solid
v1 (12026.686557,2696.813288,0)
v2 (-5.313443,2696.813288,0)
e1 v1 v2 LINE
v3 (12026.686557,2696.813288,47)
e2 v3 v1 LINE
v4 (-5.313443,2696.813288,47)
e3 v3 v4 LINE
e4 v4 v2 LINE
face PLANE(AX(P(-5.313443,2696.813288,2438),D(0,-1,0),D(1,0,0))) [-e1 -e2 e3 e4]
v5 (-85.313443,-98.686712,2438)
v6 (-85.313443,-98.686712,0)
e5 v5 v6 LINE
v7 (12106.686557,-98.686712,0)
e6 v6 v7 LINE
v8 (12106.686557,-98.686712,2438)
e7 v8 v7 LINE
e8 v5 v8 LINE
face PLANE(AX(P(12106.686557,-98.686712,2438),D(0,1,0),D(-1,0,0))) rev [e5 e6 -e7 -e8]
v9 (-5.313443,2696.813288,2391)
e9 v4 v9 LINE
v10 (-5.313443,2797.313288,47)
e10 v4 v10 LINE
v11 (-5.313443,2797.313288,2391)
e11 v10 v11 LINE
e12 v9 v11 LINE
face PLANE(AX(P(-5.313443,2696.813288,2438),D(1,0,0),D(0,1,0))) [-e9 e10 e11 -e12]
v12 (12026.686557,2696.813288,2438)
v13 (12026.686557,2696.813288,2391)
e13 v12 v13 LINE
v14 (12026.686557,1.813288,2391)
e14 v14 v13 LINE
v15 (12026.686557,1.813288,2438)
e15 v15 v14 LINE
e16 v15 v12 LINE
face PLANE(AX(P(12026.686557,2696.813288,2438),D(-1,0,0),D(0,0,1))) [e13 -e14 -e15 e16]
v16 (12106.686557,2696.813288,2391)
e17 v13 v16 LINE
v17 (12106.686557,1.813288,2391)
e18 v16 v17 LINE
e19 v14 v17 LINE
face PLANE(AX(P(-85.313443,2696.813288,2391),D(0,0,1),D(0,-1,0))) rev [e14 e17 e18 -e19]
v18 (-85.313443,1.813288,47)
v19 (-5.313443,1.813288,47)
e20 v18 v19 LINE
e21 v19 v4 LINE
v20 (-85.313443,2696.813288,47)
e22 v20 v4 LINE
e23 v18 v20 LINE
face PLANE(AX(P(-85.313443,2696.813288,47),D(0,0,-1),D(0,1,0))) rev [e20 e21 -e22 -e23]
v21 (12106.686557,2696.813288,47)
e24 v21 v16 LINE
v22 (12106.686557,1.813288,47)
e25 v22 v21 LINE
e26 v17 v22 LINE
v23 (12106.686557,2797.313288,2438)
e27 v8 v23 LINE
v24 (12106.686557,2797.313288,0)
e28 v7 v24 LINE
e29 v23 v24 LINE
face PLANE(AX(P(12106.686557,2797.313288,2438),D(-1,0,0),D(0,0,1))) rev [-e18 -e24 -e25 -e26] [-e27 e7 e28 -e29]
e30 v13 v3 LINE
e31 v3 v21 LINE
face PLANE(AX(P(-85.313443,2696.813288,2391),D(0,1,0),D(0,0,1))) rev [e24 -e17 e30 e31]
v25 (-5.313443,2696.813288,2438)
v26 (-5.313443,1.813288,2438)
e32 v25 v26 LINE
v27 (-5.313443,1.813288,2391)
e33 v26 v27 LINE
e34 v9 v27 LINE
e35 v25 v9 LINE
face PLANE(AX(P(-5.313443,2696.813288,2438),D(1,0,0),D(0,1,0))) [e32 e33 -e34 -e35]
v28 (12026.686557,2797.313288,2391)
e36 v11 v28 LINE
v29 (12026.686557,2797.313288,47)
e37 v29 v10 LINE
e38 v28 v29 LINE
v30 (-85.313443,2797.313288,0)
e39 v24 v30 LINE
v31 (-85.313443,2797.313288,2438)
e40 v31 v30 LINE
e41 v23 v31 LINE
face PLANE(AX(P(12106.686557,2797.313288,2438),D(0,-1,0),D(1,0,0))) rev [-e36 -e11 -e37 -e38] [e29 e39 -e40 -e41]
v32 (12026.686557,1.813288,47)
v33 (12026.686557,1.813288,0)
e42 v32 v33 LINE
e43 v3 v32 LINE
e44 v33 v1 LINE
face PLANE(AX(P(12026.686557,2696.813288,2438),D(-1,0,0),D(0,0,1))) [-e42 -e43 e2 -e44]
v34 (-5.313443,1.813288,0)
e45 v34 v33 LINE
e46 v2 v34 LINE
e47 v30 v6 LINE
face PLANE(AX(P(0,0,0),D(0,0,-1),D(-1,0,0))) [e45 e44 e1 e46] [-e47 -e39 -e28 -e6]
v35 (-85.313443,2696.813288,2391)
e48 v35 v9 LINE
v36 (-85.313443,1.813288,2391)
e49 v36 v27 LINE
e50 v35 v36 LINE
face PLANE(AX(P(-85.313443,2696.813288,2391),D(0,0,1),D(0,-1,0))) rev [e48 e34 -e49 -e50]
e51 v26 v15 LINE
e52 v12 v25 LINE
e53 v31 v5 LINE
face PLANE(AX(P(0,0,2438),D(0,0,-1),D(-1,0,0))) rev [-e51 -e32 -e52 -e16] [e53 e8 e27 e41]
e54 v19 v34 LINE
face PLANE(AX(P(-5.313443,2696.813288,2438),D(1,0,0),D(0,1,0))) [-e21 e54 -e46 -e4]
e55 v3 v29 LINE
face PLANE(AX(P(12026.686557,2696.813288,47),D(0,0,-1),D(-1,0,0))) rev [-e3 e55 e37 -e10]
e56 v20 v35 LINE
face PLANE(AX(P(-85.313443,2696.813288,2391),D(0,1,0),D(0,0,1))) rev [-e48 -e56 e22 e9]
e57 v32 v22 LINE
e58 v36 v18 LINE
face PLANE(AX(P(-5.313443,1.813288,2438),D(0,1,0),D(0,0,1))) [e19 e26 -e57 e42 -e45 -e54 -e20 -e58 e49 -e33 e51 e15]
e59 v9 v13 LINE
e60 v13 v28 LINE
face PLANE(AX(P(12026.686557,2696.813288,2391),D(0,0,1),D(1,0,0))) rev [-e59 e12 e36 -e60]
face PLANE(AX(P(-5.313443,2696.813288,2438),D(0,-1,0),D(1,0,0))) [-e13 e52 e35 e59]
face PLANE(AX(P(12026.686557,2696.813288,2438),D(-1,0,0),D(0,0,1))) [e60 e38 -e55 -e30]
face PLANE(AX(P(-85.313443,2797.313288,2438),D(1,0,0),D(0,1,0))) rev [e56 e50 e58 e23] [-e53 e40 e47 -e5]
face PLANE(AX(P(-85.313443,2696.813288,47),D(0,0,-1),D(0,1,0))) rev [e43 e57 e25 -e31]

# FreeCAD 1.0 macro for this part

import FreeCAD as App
import Part
import Sketcher
Q = App.Units.Quantity

doc = App.newDocument("Part")
body = doc.addObject("PartDesign::Body", "Body")

# Sketch on XY plane
sketch1 = body.newObject("Sketcher::SketchObject", "Sketch")
sketch1.AttachmentSupport = (doc.getObject("XY_Plane"), [""])
sketch1.MapMode = "FlatFace"
sketch1.addGeometry([
    Part.LineSegment(App.Vector(-85, 2797, 0), App.Vector(-85, -99, 0)),  # 0
    Part.LineSegment(App.Vector(-85, -99, 0), App.Vector(12107, -99, 0)),  # 1
    Part.LineSegment(App.Vector(12107, -99, 0), App.Vector(12107, 2797, 0)),  # 2
    Part.LineSegment(App.Vector(12107, 2797, 0), App.Vector(-85, 2797, 0)),  # 3
    Part.LineSegment(App.Vector(12027, 2, 0), App.Vector(-5, 2, 0)),  # 4
    Part.LineSegment(App.Vector(-5, 2, 0), App.Vector(-5, 2697, 0)),  # 5
    Part.LineSegment(App.Vector(-5, 2697, 0), App.Vector(12027, 2697, 0)),  # 6
    Part.LineSegment(App.Vector(12027, 2697, 0), App.Vector(12027, 2, 0)),  # 7
], False)
sketch1.addConstraint([
    Sketcher.Constraint("Coincident", 0, 2, 1, 1),
    Sketcher.Constraint("Coincident", 1, 2, 2, 1),
    Sketcher.Constraint("Coincident", 2, 2, 3, 1),
    Sketcher.Constraint("Coincident", 3, 2, 0, 1),
    Sketcher.Constraint("Coincident", 4, 2, 5, 1),
    Sketcher.Constraint("Coincident", 5, 2, 6, 1),
    Sketcher.Constraint("Coincident", 6, 2, 7, 1),
    Sketcher.Constraint("Coincident", 7, 2, 4, 1),
    Sketcher.Constraint("Vertical", 0),
    Sketcher.Constraint("Horizontal", 1),
    Sketcher.Constraint("Vertical", 2),
    Sketcher.Constraint("Horizontal", 3),
    Sketcher.Constraint("Horizontal", 4),
    Sketcher.Constraint("Vertical", 5),
    Sketcher.Constraint("Horizontal", 6),
    Sketcher.Constraint("Vertical", 7),
    Sketcher.Constraint("DistanceX", 1, 1, 1, 2, Q("12192 mm")),
    Sketcher.Constraint("DistanceX", 4, 2, 4, 1, Q("12032 mm")),
    Sketcher.Constraint("DistanceY", 0, 2, 0, 1, Q("2896 mm")),
    Sketcher.Constraint("DistanceY", 5, 1, 5, 2, Q("2695 mm")),
    Sketcher.Constraint("DistanceX", 0, 2, 4, 2, Q("80 mm")),
    Sketcher.Constraint("DistanceY", 0, 2, 4, 2, Q("100.5 mm")),
    Sketcher.Constraint("DistanceY", 0, 2, -1, 1, Q("98.686712 mm")),
    Sketcher.Constraint("DistanceX", 0, 2, -1, 1, Q("85.313443 mm")),
])
pad1 = body.newObject("PartDesign::Pad", "Pad")
pad1.Profile = sketch1
pad1.Length = 2438

# Sketch on XZ plane
sketch2 = body.newObject("Sketcher::SketchObject", "Sketch001")
sketch2.AttachmentSupport = (doc.getObject("XZ_Plane"), [""])
sketch2.MapMode = "FlatFace"
sketch2.AttachmentOffset = App.Placement(App.Vector(0, 0, -2797.313288), App.Rotation())
sketch2.addGeometry([
    Part.LineSegment(App.Vector(-5, 47, 0), App.Vector(-5, 2391, 0)),
    Part.LineSegment(App.Vector(-5, 2391, 0), App.Vector(12027, 2391, 0)),
    Part.LineSegment(App.Vector(12027, 2391, 0), App.Vector(12027, 47, 0)),
    Part.LineSegment(App.Vector(12027, 47, 0), App.Vector(-5, 47, 0)),
], False)
sketch2.addConstraint([
    Sketcher.Constraint("Coincident", 0, 2, 1, 1),
    Sketcher.Constraint("Coincident", 1, 2, 2, 1),
    Sketcher.Constraint("Coincident", 2, 2, 3, 1),
    Sketcher.Constraint("Coincident", 3, 2, 0, 1),
    Sketcher.Constraint("Vertical", 0),
    Sketcher.Constraint("Horizontal", 1),
    Sketcher.Constraint("Vertical", 2),
    Sketcher.Constraint("Horizontal", 3),
    Sketcher.Constraint("DistanceX", 1, 1, 1, 2, Q("12032 mm")),
    Sketcher.Constraint("DistanceY", 0, 1, 0, 2, Q("2344 mm")),
    Sketcher.Constraint("DistanceY", -1, 1, 0, 2, Q("2391 mm")),
    Sketcher.Constraint("DistanceX", 0, 2, -1, 1, Q("5.313443 mm")),
])
pocket1 = body.newObject("PartDesign::Pocket", "Pocket")
pocket1.Profile = sketch2
pocket1.Length = 100.5
pocket1.Reversed = True

# Sketch on YZ plane
sketch3 = body.newObject("Sketcher::SketchObject", "Sketch002")
sketch3.AttachmentSupport = (doc.getObject("YZ_Plane"), [""])
sketch3.MapMode = "FlatFace"
sketch3.AttachmentOffset = App.Placement(App.Vector(0, 0, 12106.686557), App.Rotation())
sketch3.addGeometry([
    Part.LineSegment(App.Vector(2697, 2391, 0), App.Vector(2, 2391, 0)),
    Part.LineSegment(App.Vector(2, 2391, 0), App.Vector(2, 47, 0)),
    Part.LineSegment(App.Vector(2, 47, 0), App.Vector(2697, 47, 0)),
    Part.LineSegment(App.Vector(2697, 47, 0), App.Vector(2697, 2391, 0)),
], False)
sketch3.addConstraint([
    Sketcher.Constraint("Coincident", 0, 2, 1, 1),
    Sketcher.Constraint("Coincident", 1, 2, 2, 1),
    Sketcher.Constraint("Coincident", 2, 2, 3, 1),
    Sketcher.Constraint("Coincident", 3, 2, 0, 1),
    Sketcher.Constraint("Horizontal", 0),
    Sketcher.Constraint("Vertical", 1),
    Sketcher.Constraint("Horizontal", 2),
    Sketcher.Constraint("Vertical", 3),
    Sketcher.Constraint("DistanceX", 0, 2, 0, 1, Q("2695 mm")),
    Sketcher.Constraint("DistanceY", 1, 2, 1, 1, Q("2344 mm")),
    Sketcher.Constraint("DistanceY", -1, 1, 0, 2, Q("2391 mm")),
    Sketcher.Constraint("DistanceX", -1, 1, 0, 2, Q("1.813288 mm")),
])
pocket2 = body.newObject("PartDesign::Pocket", "Pocket001")
pocket2.Profile = sketch3
pocket2.Type = "ThroughAll"

doc.recompute()
